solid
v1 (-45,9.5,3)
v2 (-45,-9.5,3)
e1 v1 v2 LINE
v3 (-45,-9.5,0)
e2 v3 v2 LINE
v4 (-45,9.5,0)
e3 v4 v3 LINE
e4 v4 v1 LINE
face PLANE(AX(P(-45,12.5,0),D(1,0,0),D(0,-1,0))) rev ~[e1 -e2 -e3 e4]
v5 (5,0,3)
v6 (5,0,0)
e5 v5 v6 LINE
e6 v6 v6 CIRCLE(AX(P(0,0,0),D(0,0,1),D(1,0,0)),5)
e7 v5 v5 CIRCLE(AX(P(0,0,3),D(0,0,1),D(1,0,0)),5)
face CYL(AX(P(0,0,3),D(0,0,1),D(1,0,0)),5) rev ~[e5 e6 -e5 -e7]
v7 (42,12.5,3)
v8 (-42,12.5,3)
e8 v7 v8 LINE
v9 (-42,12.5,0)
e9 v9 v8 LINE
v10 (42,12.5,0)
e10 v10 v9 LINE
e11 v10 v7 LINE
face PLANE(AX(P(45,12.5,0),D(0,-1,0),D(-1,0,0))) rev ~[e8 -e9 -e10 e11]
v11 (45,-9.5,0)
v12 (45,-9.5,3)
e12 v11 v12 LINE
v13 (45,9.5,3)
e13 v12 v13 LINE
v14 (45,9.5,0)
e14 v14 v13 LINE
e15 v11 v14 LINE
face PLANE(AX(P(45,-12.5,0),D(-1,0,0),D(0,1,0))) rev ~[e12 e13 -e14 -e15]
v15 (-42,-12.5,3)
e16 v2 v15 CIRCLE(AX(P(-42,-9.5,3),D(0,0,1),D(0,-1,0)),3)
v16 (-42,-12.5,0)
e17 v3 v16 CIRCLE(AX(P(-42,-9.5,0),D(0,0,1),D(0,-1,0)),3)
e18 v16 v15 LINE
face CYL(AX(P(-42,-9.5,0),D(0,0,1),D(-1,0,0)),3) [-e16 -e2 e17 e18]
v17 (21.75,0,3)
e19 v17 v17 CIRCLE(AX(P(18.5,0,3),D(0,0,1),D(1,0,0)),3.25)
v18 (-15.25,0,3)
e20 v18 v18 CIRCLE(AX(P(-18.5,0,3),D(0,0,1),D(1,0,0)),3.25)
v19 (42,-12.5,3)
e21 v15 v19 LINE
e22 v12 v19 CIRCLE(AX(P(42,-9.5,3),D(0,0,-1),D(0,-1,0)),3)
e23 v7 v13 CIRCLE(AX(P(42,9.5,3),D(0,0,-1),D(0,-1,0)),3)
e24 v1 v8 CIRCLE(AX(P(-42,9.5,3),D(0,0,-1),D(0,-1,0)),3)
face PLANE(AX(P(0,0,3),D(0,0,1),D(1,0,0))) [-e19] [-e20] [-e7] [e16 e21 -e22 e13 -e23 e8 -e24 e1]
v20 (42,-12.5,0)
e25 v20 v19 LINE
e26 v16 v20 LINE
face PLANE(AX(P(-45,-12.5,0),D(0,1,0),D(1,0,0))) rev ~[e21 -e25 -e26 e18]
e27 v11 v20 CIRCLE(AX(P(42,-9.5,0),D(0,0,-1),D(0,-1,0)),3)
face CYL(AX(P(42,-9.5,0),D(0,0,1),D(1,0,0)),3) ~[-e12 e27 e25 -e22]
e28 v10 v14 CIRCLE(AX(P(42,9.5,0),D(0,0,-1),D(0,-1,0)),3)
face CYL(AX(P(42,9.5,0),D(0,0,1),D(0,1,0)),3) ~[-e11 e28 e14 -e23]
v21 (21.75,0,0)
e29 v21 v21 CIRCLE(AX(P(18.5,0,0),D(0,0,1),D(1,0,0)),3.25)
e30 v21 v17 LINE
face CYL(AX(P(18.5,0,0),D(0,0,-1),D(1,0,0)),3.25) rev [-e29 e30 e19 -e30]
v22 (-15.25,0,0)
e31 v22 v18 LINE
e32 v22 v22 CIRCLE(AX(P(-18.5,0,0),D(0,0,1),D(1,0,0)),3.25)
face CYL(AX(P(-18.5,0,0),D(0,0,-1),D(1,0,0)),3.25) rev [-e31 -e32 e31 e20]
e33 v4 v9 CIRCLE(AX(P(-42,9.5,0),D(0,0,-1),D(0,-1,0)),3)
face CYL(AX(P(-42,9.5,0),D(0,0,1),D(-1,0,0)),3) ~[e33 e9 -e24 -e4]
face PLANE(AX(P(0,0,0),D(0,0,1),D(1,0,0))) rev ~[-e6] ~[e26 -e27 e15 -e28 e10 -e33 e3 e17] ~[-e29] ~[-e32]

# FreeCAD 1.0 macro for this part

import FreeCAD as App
import Part
import Sketcher


def edges_at(feature, points):
    """Names of the edges that pass closest to the given points."""
    edges = feature.Shape.Edges
    near = lambda p: min(range(len(edges)), key=lambda i: edges[i].distToShape(Part.Vertex(*p))[0])
    return sorted({f"Edge{near(p) + 1}" for p in points})

doc = App.newDocument("Part")
body = doc.addObject("PartDesign::Body", "Body")

# Sketch on XY plane
sketch1 = body.newObject("Sketcher::SketchObject", "Sketch")
sketch1.AttachmentSupport = (doc.getObject("XY_Plane"), [""])
sketch1.MapMode = "FlatFace"
sketch1.addGeometry(Part.LineSegment(App.Vector(-45, 12.5, 0), App.Vector(-45, -12.5, 0)), False)
sketch1.addGeometry(Part.LineSegment(App.Vector(-45, -12.5, 0), App.Vector(45, -12.5, 0)), False)
sketch1.addGeometry(Part.LineSegment(App.Vector(45, -12.5, 0), App.Vector(45, 12.5, 0)), False)
sketch1.addGeometry(Part.LineSegment(App.Vector(45, 12.5, 0), App.Vector(-45, 12.5, 0)), False)
sketch1.addGeometry(Part.Circle(App.Vector(-18.5, 0, 0), App.Vector(0, 0, 1), 3.2), False)
sketch1.addGeometry(Part.Circle(App.Vector(18.5, 0, 0), App.Vector(0, 0, 1), 3.2), False)
sketch1.addConstraint(Sketcher.Constraint("Coincident", 0, 2, 1, 1))
sketch1.addConstraint(Sketcher.Constraint("Coincident", 1, 2, 2, 1))
sketch1.addConstraint(Sketcher.Constraint("Coincident", 2, 2, 3, 1))
sketch1.addConstraint(Sketcher.Constraint("Coincident", 3, 2, 0, 1))
sketch1.addConstraint(Sketcher.Constraint("Vertical", 0))
sketch1.addConstraint(Sketcher.Constraint("Horizontal", 1))
sketch1.addConstraint(Sketcher.Constraint("Vertical", 2))
sketch1.addConstraint(Sketcher.Constraint("Horizontal", 3))
sketch1.addConstraint(Sketcher.Constraint("Equal", 4, 5))
sketch1.addConstraint(Sketcher.Constraint("Symmetric", 4, 3, 5, 3, -1, 1))
sketch1.addConstraint(Sketcher.Constraint("Symmetric", 0, 2, 2, 2, -1, 1))
sketch1.addConstraint(Sketcher.Constraint("PointOnObject", 4, 3, -1))
sketch1.addConstraint(Sketcher.Constraint("Diameter", 4, 6.5))
sketch1.addConstraint(Sketcher.Constraint("DistanceX", 1, 1, 1, 2, 90.0))
sketch1.addConstraint(Sketcher.Constraint("DistanceY", 0, 2, 0, 1, 25.0))
sketch1.addConstraint(Sketcher.Constraint("DistanceX", 4, 3, 5, 3, 37.0))
pad1 = body.newObject("PartDesign::Pad", "Pad")
pad1.Profile = sketch1
pad1.Length = 3
doc.recompute()

fillet = body.newObject("PartDesign::Fillet", "Fillet")
fillet.Base = (pad1, edges_at(pad1, [
    (45, 12.5, 1.5),
    (45, -12.5, 1.5),
    (-45, 12.5, 1.5),
    (-45, -12.5, 1.5),
]))
fillet.Radius = 3

# Sketch on XY plane
sketch2 = body.newObject("Sketcher::SketchObject", "Sketch001")
sketch2.AttachmentSupport = (doc.getObject("XY_Plane"), [""])
sketch2.MapMode = "FlatFace"
sketch2.AttachmentOffset = App.Placement(App.Vector(0, 0, 3), App.Rotation())
sketch2.addGeometry(Part.Circle(App.Vector(0, 0, 0), App.Vector(0, 0, 1), 5), False)
sketch2.addConstraint(Sketcher.Constraint("Coincident", 0, 3, -1, 1))
sketch2.addConstraint(Sketcher.Constraint("Diameter", 0, 10.0))
pocket1 = body.newObject("PartDesign::Pocket", "Pocket")
pocket1.Profile = sketch2
pocket1.Length = 10

doc.recompute()
